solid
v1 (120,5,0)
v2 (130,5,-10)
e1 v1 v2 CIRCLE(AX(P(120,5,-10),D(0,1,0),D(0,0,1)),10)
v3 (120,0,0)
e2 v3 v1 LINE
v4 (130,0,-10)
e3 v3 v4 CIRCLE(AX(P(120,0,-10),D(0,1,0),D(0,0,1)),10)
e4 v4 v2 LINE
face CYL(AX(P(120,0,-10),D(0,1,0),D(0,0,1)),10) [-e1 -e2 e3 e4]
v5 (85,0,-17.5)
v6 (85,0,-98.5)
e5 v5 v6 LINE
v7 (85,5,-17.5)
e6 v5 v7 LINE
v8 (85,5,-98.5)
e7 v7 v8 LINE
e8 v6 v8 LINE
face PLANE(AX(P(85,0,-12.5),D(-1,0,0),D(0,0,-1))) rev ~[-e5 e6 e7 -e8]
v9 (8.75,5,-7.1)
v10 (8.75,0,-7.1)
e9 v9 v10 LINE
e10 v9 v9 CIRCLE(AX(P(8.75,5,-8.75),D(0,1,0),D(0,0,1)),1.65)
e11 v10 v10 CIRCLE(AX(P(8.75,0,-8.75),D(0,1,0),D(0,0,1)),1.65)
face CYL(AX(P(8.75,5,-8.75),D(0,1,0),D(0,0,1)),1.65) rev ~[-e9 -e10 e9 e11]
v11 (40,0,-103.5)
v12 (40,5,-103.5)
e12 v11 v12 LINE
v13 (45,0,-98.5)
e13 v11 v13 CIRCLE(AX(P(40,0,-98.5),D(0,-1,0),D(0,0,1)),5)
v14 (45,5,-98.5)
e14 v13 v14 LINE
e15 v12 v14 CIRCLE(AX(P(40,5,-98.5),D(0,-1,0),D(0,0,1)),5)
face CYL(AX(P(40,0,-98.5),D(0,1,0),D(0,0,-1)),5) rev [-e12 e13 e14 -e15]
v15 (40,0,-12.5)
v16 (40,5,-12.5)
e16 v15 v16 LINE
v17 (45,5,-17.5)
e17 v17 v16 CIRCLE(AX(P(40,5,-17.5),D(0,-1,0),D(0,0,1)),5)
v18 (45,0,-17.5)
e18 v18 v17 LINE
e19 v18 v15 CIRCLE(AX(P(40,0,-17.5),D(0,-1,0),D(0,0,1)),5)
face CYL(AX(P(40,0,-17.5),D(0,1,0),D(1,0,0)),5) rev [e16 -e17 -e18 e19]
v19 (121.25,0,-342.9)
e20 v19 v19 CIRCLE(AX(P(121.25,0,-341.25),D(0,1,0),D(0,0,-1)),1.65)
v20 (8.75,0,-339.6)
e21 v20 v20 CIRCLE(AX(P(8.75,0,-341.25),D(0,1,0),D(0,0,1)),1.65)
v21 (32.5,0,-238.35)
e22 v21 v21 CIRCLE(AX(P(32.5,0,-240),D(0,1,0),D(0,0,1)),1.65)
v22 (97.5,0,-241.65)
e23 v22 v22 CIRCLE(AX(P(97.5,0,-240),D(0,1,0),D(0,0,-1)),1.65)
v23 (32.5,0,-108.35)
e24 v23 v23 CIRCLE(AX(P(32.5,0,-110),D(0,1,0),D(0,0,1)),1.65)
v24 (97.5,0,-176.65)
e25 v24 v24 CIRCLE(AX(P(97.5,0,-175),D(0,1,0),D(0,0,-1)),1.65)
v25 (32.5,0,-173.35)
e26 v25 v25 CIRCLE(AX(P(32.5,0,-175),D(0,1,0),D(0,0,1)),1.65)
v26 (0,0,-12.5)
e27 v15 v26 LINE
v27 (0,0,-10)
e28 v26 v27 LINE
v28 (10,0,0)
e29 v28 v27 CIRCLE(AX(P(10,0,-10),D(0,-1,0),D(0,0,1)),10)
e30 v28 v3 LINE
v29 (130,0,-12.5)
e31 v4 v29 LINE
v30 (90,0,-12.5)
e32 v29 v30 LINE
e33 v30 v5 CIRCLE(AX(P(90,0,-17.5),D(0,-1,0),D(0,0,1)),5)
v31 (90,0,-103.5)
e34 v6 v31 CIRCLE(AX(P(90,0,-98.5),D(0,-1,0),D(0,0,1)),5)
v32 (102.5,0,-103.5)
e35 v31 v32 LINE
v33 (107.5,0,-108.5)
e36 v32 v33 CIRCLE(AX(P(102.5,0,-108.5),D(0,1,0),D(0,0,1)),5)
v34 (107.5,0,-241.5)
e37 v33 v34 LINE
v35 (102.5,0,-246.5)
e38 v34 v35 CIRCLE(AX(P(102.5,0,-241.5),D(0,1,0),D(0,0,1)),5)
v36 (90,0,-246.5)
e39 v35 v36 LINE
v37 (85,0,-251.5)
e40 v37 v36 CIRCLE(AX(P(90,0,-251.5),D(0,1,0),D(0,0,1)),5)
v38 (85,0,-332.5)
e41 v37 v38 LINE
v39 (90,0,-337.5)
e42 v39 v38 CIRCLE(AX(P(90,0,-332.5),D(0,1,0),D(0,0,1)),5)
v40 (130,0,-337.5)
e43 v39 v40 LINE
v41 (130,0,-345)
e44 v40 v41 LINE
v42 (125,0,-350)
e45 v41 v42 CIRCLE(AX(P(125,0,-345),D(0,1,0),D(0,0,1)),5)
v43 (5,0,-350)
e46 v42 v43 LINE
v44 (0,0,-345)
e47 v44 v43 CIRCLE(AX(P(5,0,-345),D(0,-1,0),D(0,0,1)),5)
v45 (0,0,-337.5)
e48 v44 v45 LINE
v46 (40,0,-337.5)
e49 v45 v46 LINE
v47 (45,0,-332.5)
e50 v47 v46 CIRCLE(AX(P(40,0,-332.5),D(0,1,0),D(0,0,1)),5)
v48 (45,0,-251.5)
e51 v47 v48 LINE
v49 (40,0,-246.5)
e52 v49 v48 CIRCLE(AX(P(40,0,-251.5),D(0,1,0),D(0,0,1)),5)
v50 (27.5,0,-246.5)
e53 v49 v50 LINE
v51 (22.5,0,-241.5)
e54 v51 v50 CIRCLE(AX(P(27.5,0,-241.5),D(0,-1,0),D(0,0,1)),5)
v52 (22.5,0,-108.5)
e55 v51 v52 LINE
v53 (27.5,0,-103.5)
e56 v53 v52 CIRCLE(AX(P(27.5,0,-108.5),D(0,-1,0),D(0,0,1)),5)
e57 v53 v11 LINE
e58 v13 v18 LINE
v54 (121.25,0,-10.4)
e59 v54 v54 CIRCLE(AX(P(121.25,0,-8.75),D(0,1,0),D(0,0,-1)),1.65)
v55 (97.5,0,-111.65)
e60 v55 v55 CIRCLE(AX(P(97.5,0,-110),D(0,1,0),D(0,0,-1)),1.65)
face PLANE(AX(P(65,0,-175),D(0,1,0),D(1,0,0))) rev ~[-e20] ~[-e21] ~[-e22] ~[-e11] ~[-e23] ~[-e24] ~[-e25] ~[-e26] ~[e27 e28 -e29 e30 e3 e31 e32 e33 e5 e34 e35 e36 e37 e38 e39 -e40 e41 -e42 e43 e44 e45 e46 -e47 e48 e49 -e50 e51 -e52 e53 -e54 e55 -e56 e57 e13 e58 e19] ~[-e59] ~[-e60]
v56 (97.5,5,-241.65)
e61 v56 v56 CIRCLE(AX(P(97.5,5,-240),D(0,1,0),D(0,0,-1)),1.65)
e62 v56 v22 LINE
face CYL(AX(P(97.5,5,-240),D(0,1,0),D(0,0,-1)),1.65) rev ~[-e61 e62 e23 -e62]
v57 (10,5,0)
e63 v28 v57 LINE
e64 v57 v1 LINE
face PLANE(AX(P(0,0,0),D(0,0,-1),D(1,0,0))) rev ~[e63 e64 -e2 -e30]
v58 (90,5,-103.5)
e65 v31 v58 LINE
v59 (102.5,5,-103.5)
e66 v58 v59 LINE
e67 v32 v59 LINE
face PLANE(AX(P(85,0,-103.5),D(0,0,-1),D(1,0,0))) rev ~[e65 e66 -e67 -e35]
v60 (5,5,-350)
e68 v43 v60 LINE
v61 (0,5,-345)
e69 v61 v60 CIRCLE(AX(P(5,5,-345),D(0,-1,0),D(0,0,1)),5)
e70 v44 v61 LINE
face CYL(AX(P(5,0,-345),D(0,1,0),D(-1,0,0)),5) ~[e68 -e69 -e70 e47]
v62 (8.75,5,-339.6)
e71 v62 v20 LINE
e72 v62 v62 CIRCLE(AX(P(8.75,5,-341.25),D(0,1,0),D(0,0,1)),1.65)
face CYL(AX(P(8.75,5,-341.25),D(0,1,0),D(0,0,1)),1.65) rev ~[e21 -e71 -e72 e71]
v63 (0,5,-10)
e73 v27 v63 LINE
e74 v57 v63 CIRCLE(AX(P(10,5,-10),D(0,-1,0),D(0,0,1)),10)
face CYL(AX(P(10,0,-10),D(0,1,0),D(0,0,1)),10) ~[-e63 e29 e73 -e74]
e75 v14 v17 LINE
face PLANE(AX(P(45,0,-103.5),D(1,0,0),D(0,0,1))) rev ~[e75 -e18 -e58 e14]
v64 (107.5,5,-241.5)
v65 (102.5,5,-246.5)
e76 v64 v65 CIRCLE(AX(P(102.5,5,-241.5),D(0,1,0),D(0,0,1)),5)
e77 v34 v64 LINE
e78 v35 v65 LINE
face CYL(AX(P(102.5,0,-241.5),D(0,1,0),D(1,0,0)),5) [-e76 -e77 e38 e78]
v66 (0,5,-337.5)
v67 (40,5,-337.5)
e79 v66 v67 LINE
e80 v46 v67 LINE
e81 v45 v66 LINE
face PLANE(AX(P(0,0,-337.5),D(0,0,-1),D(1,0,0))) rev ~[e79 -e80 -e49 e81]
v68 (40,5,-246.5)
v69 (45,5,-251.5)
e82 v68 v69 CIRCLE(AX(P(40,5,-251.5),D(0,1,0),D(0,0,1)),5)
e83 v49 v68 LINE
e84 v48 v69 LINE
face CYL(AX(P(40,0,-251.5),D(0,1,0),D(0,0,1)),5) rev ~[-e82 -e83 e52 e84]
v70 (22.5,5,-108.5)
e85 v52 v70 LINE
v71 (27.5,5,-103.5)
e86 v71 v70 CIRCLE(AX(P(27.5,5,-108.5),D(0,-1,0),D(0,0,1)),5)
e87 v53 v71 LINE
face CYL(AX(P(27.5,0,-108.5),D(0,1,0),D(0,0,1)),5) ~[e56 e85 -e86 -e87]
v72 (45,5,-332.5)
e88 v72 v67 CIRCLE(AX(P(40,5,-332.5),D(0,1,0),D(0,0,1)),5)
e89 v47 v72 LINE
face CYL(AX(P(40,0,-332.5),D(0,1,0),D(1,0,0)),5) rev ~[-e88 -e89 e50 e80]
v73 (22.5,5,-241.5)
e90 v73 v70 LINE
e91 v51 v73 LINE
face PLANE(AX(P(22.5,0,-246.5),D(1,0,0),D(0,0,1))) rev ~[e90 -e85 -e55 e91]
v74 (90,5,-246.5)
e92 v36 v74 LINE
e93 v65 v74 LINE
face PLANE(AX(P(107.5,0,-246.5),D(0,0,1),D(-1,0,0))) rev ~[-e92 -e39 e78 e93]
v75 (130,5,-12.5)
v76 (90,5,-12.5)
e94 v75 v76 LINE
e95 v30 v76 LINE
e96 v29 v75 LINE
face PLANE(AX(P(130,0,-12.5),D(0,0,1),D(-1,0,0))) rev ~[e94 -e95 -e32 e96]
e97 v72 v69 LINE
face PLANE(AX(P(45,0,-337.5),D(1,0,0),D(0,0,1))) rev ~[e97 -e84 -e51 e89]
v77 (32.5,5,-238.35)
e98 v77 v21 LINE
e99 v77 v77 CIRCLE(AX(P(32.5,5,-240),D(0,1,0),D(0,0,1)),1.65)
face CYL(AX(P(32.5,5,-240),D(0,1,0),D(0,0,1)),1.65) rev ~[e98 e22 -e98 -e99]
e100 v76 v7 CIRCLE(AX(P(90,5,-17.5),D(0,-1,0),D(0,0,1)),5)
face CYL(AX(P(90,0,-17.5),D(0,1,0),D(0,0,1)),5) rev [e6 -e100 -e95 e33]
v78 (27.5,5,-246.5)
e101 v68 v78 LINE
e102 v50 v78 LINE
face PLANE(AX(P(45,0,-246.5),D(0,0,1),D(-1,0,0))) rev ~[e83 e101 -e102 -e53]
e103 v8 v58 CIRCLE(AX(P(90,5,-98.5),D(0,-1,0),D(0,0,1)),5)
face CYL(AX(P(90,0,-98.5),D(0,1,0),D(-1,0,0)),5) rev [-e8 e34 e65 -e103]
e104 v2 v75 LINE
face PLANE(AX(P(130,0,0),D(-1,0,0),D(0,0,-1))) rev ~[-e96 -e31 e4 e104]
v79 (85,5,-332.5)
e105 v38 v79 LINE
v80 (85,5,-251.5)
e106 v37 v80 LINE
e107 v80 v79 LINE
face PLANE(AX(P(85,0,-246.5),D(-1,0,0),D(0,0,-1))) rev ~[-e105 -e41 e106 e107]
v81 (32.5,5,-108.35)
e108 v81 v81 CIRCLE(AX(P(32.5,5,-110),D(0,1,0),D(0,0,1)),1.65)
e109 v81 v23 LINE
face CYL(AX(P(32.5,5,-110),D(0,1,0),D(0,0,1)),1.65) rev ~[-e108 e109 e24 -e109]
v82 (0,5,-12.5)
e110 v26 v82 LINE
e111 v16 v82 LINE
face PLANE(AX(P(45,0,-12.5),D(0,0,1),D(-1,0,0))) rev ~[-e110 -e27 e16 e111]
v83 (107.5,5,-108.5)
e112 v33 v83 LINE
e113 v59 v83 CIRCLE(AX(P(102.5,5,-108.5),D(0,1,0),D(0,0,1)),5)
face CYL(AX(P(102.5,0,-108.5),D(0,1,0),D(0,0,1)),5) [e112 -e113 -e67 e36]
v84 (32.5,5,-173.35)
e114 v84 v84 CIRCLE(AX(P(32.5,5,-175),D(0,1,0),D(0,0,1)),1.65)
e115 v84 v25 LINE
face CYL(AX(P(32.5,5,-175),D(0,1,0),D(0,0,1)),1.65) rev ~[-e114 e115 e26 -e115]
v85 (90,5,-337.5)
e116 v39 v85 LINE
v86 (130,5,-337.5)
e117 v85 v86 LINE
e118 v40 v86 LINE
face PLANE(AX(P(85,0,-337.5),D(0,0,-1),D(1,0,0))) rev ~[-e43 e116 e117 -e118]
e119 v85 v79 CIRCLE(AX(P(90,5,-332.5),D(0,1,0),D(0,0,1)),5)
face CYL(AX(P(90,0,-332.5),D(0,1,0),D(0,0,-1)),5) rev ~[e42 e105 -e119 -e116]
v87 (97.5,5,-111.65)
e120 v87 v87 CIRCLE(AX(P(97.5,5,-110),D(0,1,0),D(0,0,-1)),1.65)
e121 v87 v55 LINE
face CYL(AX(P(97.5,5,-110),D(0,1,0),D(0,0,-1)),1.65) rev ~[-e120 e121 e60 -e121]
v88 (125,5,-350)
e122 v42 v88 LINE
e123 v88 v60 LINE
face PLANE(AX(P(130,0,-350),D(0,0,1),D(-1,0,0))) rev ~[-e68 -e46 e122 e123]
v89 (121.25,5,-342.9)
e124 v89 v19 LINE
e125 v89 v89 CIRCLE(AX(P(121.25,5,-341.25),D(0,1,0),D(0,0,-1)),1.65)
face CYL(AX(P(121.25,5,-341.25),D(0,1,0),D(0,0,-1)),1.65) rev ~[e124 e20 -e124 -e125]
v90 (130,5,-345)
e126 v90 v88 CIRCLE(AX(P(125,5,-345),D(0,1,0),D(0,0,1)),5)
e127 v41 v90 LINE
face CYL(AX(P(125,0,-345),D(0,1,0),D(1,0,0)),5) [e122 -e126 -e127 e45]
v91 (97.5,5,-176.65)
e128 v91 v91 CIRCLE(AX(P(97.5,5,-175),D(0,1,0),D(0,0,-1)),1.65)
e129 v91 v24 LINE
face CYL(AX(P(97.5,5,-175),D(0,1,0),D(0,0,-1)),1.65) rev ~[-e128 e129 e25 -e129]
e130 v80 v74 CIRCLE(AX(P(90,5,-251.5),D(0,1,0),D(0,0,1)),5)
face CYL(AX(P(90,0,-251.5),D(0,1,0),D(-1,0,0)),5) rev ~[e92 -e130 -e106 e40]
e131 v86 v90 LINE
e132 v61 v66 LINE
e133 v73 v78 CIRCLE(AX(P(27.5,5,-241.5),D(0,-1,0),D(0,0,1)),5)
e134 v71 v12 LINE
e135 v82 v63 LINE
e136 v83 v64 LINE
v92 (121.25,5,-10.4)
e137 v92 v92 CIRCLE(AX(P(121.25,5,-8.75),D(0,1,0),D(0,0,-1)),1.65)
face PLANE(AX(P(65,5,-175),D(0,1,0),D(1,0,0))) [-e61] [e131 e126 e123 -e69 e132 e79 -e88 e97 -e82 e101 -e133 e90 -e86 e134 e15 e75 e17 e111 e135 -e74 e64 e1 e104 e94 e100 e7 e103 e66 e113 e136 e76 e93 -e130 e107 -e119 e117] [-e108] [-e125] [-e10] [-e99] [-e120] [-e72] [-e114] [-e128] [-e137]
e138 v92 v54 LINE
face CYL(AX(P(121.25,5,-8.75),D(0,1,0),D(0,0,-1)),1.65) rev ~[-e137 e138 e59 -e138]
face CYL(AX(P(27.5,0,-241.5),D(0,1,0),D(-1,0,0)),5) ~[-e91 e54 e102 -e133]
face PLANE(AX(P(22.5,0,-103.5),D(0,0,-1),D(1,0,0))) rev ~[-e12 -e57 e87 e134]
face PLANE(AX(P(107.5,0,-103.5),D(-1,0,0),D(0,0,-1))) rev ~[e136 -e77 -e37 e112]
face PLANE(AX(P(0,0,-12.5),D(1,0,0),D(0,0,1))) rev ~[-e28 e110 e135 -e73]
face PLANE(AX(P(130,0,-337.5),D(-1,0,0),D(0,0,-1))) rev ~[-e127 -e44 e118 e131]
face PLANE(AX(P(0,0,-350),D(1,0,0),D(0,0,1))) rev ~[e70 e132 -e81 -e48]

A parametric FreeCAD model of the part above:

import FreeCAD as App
import Part
import Sketcher

V = App.Vector
Q = App.Units.Quantity


def edges_at(feature, points):
    """Names of the edges that pass closest to the given points."""
    edges = feature.Shape.Edges
    near = lambda p: min(range(len(edges)), key=lambda i: edges[i].distToShape(Part.Vertex(*p))[0])
    return sorted({f"Edge{near(p) + 1}" for p in points})


def add_polygon(sketch, points):
    """Adds a closed chain of lines whose ends are joined by coincident constraints."""
    first, n = sketch.GeometryCount, len(points)
    for a, b in zip(points, points[1:] + points[:1]):
        sketch.addGeometry(Part.LineSegment(App.Vector(*a, 0), App.Vector(*b, 0)), False)
    for i in range(n):
        sketch.addConstraint(Sketcher.Constraint("Coincident", first + i, 2, first + (i + 1) % n, 1))

doc = App.newDocument("Part")
body = doc.addObject("PartDesign::Body", "Body")

# Sketch on XZ plane
sketch1 = body.newObject("Sketcher::SketchObject", "Sketch")
sketch1.AttachmentSupport = (doc.getObject("XZ_Plane"), [""])
sketch1.MapMode = "FlatFace"
add_polygon(sketch1, [(0, 0), (130, 0), (130, -12), (85, -12), (85, -104), (108, -104), (108, -246), (85, -246), (85, -338), (130, -338), (130, -350), (0, -350), (0, -338), (45, -338), (45, -246), (22, -246), (22, -104), (45, -104), (45, -12), (0, -12)])  # lines 0-19
sketch1.addConstraint(Sketcher.Constraint("Horizontal", 0))
sketch1.addConstraint(Sketcher.Constraint("Vertical", 1))
sketch1.addConstraint(Sketcher.Constraint("Horizontal", 2))
sketch1.addConstraint(Sketcher.Constraint("Vertical", 3))
sketch1.addConstraint(Sketcher.Constraint("Horizontal", 4))
sketch1.addConstraint(Sketcher.Constraint("Vertical", 5))
sketch1.addConstraint(Sketcher.Constraint("Horizontal", 6))
sketch1.addConstraint(Sketcher.Constraint("Vertical", 7))
sketch1.addConstraint(Sketcher.Constraint("Horizontal", 8))
sketch1.addConstraint(Sketcher.Constraint("Vertical", 9))
sketch1.addConstraint(Sketcher.Constraint("Horizontal", 10))
sketch1.addConstraint(Sketcher.Constraint("Vertical", 11))
sketch1.addConstraint(Sketcher.Constraint("Horizontal", 12))
sketch1.addConstraint(Sketcher.Constraint("Vertical", 13))
sketch1.addConstraint(Sketcher.Constraint("Horizontal", 14))
sketch1.addConstraint(Sketcher.Constraint("Vertical", 15))
sketch1.addConstraint(Sketcher.Constraint("Horizontal", 16))
sketch1.addConstraint(Sketcher.Constraint("Vertical", 17))
sketch1.addConstraint(Sketcher.Constraint("Horizontal", 18))
sketch1.addConstraint(Sketcher.Constraint("Vertical", 19))
sketch1.addConstraint(Sketcher.Constraint("Coincident", 19, 2, -1, 1))
sketch1.addConstraint(Sketcher.Constraint("PointOnObject", 10, 2, -2))
sketch1.addConstraint(Sketcher.Constraint("Horizontal", 8, 2, 11, 2))
sketch1.addConstraint(Sketcher.Constraint("Horizontal", 6, 2, 13, 2))
sketch1.addConstraint(Sketcher.Constraint("Horizontal", 4, 2, 15, 2))
sketch1.addConstraint(Sketcher.Constraint("Horizontal", 2, 2, 17, 2))
sketch1.addConstraint(Sketcher.Constraint("Vertical", 3, 2, 6, 2))
sketch1.addConstraint(Sketcher.Constraint("Vertical", 1, 2, 8, 2))
sketch1.addConstraint(Sketcher.Constraint("Vertical", 13, 2, 16, 2))
sketch1.addConstraint(Sketcher.Constraint("Equal", 8, 12))
sketch1.addConstraint(Sketcher.Constraint("Equal", 6, 14))
sketch1.addConstraint(Sketcher.Constraint("Equal", 3, 7))
sketch1.addConstraint(Sketcher.Constraint("Equal", 1, 9))
sketch1.addConstraint(Sketcher.Constraint("DistanceX", 0, 1, 0, 2, Q("130 mm")))
sketch1.addConstraint(Sketcher.Constraint("DistanceX", 2, 2, 2, 1, Q("45 mm")))
sketch1.addConstraint(Sketcher.Constraint("DistanceY", 3, 2, 3, 1, Q("91 mm")))
sketch1.addConstraint(Sketcher.Constraint("DistanceY", 5, 2, 5, 1, Q("143 mm")))
sketch1.addConstraint(Sketcher.Constraint("DistanceX", 4, 1, 4, 2, Q("22.5 mm")))
sketch1.addConstraint(Sketcher.Constraint("DistanceY", 1, 2, 1, 1, Q("12.5 mm")))
pad1 = body.newObject("PartDesign::Pad", "Pad")
pad1.Profile = sketch1
pad1.Length = 5
pad1.Reversed = True
doc.recompute()

fillet = body.newObject("PartDesign::Fillet", "Fillet")
fillet.Base = (pad1, edges_at(pad1, [(130, 2.5, 0), (0, 2.5, 0)]))
fillet.Radius = 10
doc.recompute()

fillet2 = body.newObject("PartDesign::Fillet", "Fillet001")
fillet2.Base = (fillet, edges_at(fillet, [
    (22.5, 2.5, -103.5),
    (22.5, 2.5, -246.5),
    (0, 2.5, -350),
    (130, 2.5, -350),
    (107.5, 2.5, -246.5),
    (107.5, 2.5, -103.5),
]))
fillet2.Radius = 5

# Sketch on XZ plane
sketch2 = body.newObject("Sketcher::SketchObject", "Sketch001")
sketch2.AttachmentSupport = (doc.getObject("XZ_Plane"), [""])
sketch2.MapMode = "FlatFace"
sketch2.AttachmentOffset = App.Placement(V(0, 0, -5), App.Rotation())
sketch2.addGeometry(Part.Circle(V(32.5, -240, 0), V(0, 0, 1), 1.6), False)
sketch2.addGeometry(Part.Circle(V(32.5, -175, 0), V(0, 0, 1), 1.6), False)
sketch2.addGeometry(Part.Circle(V(32.5, -110, 0), V(0, 0, 1), 1.6), False)
sketch2.addGeometry(Part.Circle(V(97.5, -110, 0), V(0, 0, 1), 1.6), False)
sketch2.addGeometry(Part.Circle(V(97.5, -175, 0), V(0, 0, 1), 1.6), False)
sketch2.addGeometry(Part.Circle(V(97.5, -240, 0), V(0, 0, 1), 1.6), False)
sketch2.addConstraint(Sketcher.Constraint("Equal", 0, 1))
sketch2.addConstraint(Sketcher.Constraint("Equal", 1, 2))
sketch2.addConstraint(Sketcher.Constraint("Equal", 2, 3))
sketch2.addConstraint(Sketcher.Constraint("Equal", 3, 4))
sketch2.addConstraint(Sketcher.Constraint("Equal", 4, 5))
sketch2.addConstraint(Sketcher.Constraint("Horizontal", 2, 3, 3, 3))
sketch2.addConstraint(Sketcher.Constraint("Horizontal", 1, 3, 4, 3))
sketch2.addConstraint(Sketcher.Constraint("Horizontal", 0, 3, 5, 3))
sketch2.addConstraint(Sketcher.Constraint("Vertical", 0, 3, 1, 3))
sketch2.addConstraint(Sketcher.Constraint("Vertical", 1, 3, 2, 3))
sketch2.addConstraint(Sketcher.Constraint("Vertical", 3, 3, 4, 3))
sketch2.addConstraint(Sketcher.Constraint("Vertical", 4, 3, 5, 3))
sketch2.addConstraint(Sketcher.Constraint("Diameter", 0, Q("3.3 mm")))
sketch2.addConstraint(Sketcher.Constraint("DistanceY", 0, 3, -1, 1, Q("240 mm")))
sketch2.addConstraint(Sketcher.Constraint("DistanceY", 1, 3, -1, 1, Q("175 mm")))
sketch2.addConstraint(Sketcher.Constraint("DistanceY", 2, 3, -1, 1, Q("110 mm")))
sketch2.addConstraint(Sketcher.Constraint("DistanceX", 2, 3, 3, 3, Q("65 mm")))
sketch2.addConstraint(Sketcher.Constraint("DistanceX", -1, 1, 0, 3, Q("32.5 mm")))
pocket1 = body.newObject("PartDesign::Pocket", "Pocket")
pocket1.Profile = sketch2
pocket1.Type = "ThroughAll"
pocket1.Reversed = True

# Sketch on XZ plane
sketch3 = body.newObject("Sketcher::SketchObject", "Sketch002")
sketch3.AttachmentSupport = (doc.getObject("XZ_Plane"), [""])
sketch3.MapMode = "FlatFace"
sketch3.AttachmentOffset = App.Placement(V(0, 0, -5), App.Rotation())
sketch3.addGeometry(Part.Circle(V(8.8, -8.8, 0), V(0, 0, 1), 1.6), False)
sketch3.addGeometry(Part.Circle(V(121.2, -8.8, 0), V(0, 0, 1), 1.6), False)
sketch3.addConstraint(Sketcher.Constraint("Equal", 0, 1))
sketch3.addConstraint(Sketcher.Constraint("Horizontal", 0, 3, 1, 3))
sketch3.addConstraint(Sketcher.Constraint("Diameter", 0, Q("3.3 mm")))
sketch3.addConstraint(Sketcher.Constraint("DistanceX", 0, 3, 1, 3, Q("112.5 mm")))
sketch3.addConstraint(Sketcher.Constraint("DistanceX", -1, 1, 0, 3, Q("8.75 mm")))
sketch3.addConstraint(Sketcher.Constraint("DistanceY", 0, 3, -1, 1, Q("8.75 mm")))
pocket2 = body.newObject("PartDesign::Pocket", "Pocket001")
pocket2.Profile = sketch3
pocket2.Type = "ThroughAll"
pocket2.Reversed = True

# Sketch on XZ plane
sketch4 = body.newObject("Sketcher::SketchObject", "Sketch003")
sketch4.AttachmentSupport = (doc.getObject("XZ_Plane"), [""])
sketch4.MapMode = "FlatFace"
sketch4.AttachmentOffset = App.Placement(V(0, 0, -5), App.Rotation())
sketch4.addGeometry(Part.Circle(V(8.8, -341.2, 0), V(0, 0, 1), 1.6), False)
sketch4.addGeometry(Part.Circle(V(121.2, -341.2, 0), V(0, 0, 1), 1.6), False)
sketch4.addConstraint(Sketcher.Constraint("Equal", 0, 1))
sketch4.addConstraint(Sketcher.Constraint("Horizontal", 0, 3, 1, 3))
sketch4.addConstraint(Sketcher.Constraint("Diameter", 0, Q("3.3 mm")))
sketch4.addConstraint(Sketcher.Constraint("DistanceX", 0, 3, 1, 3, Q("112.5 mm")))
sketch4.addConstraint(Sketcher.Constraint("DistanceX", -1, 1, 0, 3, Q("8.75 mm")))
sketch4.addConstraint(Sketcher.Constraint("DistanceY", 0, 3, -1, 1, Q("341.25 mm")))
pocket3 = body.newObject("PartDesign::Pocket", "Pocket002")
pocket3.Profile = sketch4
pocket3.Type = "ThroughAll"
pocket3.Reversed = True
doc.recompute()

fillet3 = body.newObject("PartDesign::Fillet", "Fillet002")
fillet3.Base = (pocket3, edges_at(pocket3, [
    (45, 2.5, -12.5),
    (45, 2.5, -103.5),
    (45, 2.5, -246.5),
    (45, 2.5, -337.5),
    (85, 2.5, -337.5),
    (85, 2.5, -246.5),
    (85, 2.5, -103.5),
    (85, 2.5, -12.5),
]))
fillet3.Radius = 5

doc.recompute()
